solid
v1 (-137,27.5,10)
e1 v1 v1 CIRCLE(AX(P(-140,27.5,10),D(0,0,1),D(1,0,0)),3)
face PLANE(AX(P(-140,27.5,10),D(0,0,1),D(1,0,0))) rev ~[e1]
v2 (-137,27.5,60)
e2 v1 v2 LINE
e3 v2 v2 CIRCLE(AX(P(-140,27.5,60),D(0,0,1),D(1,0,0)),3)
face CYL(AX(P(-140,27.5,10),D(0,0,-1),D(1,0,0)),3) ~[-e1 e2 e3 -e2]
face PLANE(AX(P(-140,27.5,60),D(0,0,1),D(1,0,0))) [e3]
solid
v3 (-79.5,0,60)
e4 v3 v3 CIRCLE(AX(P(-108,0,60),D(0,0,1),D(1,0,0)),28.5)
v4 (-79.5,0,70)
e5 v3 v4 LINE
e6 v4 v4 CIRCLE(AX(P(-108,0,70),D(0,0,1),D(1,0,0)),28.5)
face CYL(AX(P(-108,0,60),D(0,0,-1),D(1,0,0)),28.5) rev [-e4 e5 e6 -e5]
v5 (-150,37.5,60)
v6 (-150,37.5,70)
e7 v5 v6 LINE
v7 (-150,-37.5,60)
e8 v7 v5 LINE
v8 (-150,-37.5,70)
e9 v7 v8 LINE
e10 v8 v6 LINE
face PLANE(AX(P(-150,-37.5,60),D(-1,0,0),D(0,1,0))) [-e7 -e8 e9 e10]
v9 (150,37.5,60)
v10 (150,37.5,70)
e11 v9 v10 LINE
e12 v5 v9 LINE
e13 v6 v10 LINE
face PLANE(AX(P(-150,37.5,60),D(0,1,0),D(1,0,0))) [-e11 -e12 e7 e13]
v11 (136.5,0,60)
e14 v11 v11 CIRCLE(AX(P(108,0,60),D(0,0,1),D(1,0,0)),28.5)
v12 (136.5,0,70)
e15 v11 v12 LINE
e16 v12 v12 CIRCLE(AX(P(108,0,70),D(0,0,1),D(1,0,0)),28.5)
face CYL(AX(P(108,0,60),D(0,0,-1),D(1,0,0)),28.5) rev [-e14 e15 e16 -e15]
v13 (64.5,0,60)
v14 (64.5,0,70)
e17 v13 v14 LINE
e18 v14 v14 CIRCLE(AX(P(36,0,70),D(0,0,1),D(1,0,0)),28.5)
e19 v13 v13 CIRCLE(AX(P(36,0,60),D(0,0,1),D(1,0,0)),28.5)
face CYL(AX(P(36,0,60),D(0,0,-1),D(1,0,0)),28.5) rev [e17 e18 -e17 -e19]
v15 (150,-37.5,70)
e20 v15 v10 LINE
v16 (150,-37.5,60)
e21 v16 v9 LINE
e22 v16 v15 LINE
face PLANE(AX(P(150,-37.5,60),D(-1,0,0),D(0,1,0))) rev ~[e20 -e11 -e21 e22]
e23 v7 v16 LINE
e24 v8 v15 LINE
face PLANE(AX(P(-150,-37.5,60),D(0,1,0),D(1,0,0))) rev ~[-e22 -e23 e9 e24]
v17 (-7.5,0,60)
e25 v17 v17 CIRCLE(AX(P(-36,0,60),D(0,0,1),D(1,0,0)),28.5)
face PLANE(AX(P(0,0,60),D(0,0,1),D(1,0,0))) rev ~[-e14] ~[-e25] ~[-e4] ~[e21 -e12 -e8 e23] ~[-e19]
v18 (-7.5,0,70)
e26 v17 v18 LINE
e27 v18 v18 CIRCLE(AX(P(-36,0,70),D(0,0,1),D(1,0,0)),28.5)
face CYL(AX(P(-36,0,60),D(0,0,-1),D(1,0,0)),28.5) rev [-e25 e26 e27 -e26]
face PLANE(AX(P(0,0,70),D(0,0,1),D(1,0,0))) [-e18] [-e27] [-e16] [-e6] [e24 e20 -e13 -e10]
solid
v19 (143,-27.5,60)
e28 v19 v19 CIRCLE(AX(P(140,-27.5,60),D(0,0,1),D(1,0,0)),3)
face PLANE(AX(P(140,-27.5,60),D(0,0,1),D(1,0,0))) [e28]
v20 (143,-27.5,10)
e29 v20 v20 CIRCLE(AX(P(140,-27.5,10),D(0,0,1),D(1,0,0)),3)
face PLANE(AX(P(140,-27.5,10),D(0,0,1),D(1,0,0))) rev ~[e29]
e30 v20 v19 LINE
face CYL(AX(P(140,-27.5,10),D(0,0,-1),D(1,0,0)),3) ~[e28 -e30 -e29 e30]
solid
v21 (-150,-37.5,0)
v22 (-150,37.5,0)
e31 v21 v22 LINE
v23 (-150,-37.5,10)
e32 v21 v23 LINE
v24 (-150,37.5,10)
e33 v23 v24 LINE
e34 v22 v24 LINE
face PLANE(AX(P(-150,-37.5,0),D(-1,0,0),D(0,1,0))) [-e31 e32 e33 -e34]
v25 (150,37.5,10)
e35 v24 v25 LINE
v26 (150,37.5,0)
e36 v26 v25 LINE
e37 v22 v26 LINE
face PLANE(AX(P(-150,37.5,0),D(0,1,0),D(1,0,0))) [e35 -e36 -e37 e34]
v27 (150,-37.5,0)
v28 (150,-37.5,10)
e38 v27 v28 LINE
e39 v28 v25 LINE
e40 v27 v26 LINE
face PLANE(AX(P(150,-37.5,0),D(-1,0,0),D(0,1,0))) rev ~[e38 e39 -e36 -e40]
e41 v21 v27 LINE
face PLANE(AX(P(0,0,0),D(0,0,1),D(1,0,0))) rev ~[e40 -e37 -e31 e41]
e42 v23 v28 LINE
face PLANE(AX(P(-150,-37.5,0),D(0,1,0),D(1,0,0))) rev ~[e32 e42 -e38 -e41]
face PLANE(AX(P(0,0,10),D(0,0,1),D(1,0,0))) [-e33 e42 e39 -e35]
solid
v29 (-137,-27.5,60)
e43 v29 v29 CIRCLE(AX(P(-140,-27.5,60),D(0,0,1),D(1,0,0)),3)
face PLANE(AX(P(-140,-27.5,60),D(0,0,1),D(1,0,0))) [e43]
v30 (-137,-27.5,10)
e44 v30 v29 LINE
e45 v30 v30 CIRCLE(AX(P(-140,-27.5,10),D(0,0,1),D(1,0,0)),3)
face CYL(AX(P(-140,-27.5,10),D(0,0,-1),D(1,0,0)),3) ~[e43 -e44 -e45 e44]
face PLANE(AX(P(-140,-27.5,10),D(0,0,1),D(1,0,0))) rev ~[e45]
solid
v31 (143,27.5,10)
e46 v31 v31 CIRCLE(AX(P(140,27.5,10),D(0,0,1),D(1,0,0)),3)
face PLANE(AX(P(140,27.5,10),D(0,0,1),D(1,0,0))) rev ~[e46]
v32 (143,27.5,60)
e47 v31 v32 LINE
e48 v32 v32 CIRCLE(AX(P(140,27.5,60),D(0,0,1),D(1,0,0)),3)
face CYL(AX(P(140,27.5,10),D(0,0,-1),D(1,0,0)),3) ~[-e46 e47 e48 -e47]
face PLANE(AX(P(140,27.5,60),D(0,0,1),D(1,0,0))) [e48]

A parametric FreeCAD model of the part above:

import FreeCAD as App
import Part
import Sketcher
from FreeCAD import Vector
Q = App.Units.Quantity


def add_polygon(sketch, points):
    """Adds a closed chain of lines whose ends are joined by coincident constraints."""
    first, n = sketch.GeometryCount, len(points)
    for a, b in zip(points, points[1:] + points[:1]):
        sketch.addGeometry(Part.LineSegment(App.Vector(*a, 0), App.Vector(*b, 0)), False)
    for i in range(n):
        sketch.addConstraint(Sketcher.Constraint("Coincident", first + i, 2, first + (i + 1) % n, 1))

doc = App.newDocument("Part")
body = doc.addObject("PartDesign::Body", "Body")

sketch1 = body.newObject("Sketcher::SketchObject", "Sketch")
sketch1.AttachmentSupport = (doc.getObject("XY_Plane"), [""])
sketch1.MapMode = "FlatFace"
add_polygon(sketch1, [(-150, 38), (-150, -38), (150, -38), (150, 38)])
sketch1.addConstraint(Sketcher.Constraint("Vertical", 0))
sketch1.addConstraint(Sketcher.Constraint("Horizontal", 1))
sketch1.addConstraint(Sketcher.Constraint("Vertical", 2))
sketch1.addConstraint(Sketcher.Constraint("Horizontal", 3))
sketch1.addConstraint(Sketcher.Constraint("Symmetric", 0, 2, 2, 2, -1, 1))
sketch1.addConstraint(Sketcher.Constraint("DistanceX", 1, 1, 1, 2, Q("300 mm")))
sketch1.addConstraint(Sketcher.Constraint("DistanceY", 0, 2, 0, 1, Q("75 mm")))
pad1 = body.newObject("PartDesign::Pad", "Pad")
pad1.Profile = sketch1
pad1.Length = 10
body2 = doc.addObject("PartDesign::Body", "Body001")

sketch2 = body2.newObject("Sketcher::SketchObject", "Sketch001")
sketch2.AttachmentSupport = (doc.getObject("XY_Plane001"), [""])
sketch2.MapMode = "FlatFace"
sketch2.AttachmentOffset = App.Placement(Vector(0, 0, 60), App.Rotation())
add_polygon(sketch2, [(-150, 38), (-150, -38), (150, -38), (150, 38)])
sketch2.addGeometry(Part.Circle(Vector(-108, 0, 0), Vector(0, 0, 1), 28), False)
sketch2.addGeometry(Part.Circle(Vector(-36, 0, 0), Vector(0, 0, 1), 28), False)
sketch2.addGeometry(Part.Circle(Vector(36, 0, 0), Vector(0, 0, 1), 28), False)
sketch2.addGeometry(Part.Circle(Vector(108, 0, 0), Vector(0, 0, 1), 28), False)
sketch2.addConstraint(Sketcher.Constraint("Vertical", 0))
sketch2.addConstraint(Sketcher.Constraint("Horizontal", 1))
sketch2.addConstraint(Sketcher.Constraint("Vertical", 2))
sketch2.addConstraint(Sketcher.Constraint("Horizontal", 3))
sketch2.addConstraint(Sketcher.Constraint("Equal", 4, 5))
sketch2.addConstraint(Sketcher.Constraint("Equal", 5, 6))
sketch2.addConstraint(Sketcher.Constraint("Equal", 6, 7))
sketch2.addConstraint(Sketcher.Constraint("Symmetric", 5, 3, 6, 3, -1, 1))
sketch2.addConstraint(Sketcher.Constraint("Symmetric", 4, 3, 7, 3, -1, 1))
sketch2.addConstraint(Sketcher.Constraint("Symmetric", 0, 2, 2, 2, -1, 1))
sketch2.addConstraint(Sketcher.Constraint("PointOnObject", 4, 3, -1))
sketch2.addConstraint(Sketcher.Constraint("PointOnObject", 5, 3, -1))
sketch2.addConstraint(Sketcher.Constraint("Diameter", 4, Q("57 mm")))
sketch2.addConstraint(Sketcher.Constraint("DistanceX", 1, 1, 1, 2, Q("300 mm")))
sketch2.addConstraint(Sketcher.Constraint("DistanceY", 0, 2, 0, 1, Q("75 mm")))
sketch2.addConstraint(Sketcher.Constraint("DistanceX", 4, 3, -1, 1, Q("108 mm")))
sketch2.addConstraint(Sketcher.Constraint("DistanceX", 5, 3, -1, 1, Q("36 mm")))
pad2 = body2.newObject("PartDesign::Pad", "Pad001")
pad2.Profile = sketch2
pad2.Length = 10
body3 = doc.addObject("PartDesign::Body", "Body002")
body3.AllowCompound = True

sketch3 = body3.newObject("Sketcher::SketchObject", "Sketch002")
sketch3.AttachmentSupport = (doc.getObject("XY_Plane002"), [""])
sketch3.MapMode = "FlatFace"
sketch3.AttachmentOffset = App.Placement(Vector(0, 0, 10), App.Rotation())
sketch3.addGeometry(Part.Circle(Vector(-140, -27.5, 0), Vector(0, 0, 1), 3), False)
sketch3.addGeometry(Part.Circle(Vector(-140, 27.5, 0), Vector(0, 0, 1), 3), False)
sketch3.addGeometry(Part.Circle(Vector(140, 27.5, 0), Vector(0, 0, 1), 3), False)
sketch3.addGeometry(Part.Circle(Vector(140, -27.5, 0), Vector(0, 0, 1), 3), False)
sketch3.addConstraint(Sketcher.Constraint("Equal", 0, 1))
sketch3.addConstraint(Sketcher.Constraint("Equal", 1, 2))
sketch3.addConstraint(Sketcher.Constraint("Equal", 2, 3))
sketch3.addConstraint(Sketcher.Constraint("Symmetric", 0, 3, 2, 3, -1, 1))
sketch3.addConstraint(Sketcher.Constraint("Symmetric", 1, 3, 3, 3, -1, 1))
sketch3.addConstraint(Sketcher.Constraint("Symmetric", 1, 3, 2, 3, -2))
sketch3.addConstraint(Sketcher.Constraint("Diameter", 0, Q("6 mm")))
sketch3.addConstraint(Sketcher.Constraint("DistanceX", 0, 3, -1, 1, Q("140 mm")))
sketch3.addConstraint(Sketcher.Constraint("DistanceY", 0, 3, 1, 3, Q("55 mm")))
pad3 = body3.newObject("PartDesign::Pad", "Pad002")
pad3.Profile = sketch3
pad3.Length = 50

doc.recompute()
